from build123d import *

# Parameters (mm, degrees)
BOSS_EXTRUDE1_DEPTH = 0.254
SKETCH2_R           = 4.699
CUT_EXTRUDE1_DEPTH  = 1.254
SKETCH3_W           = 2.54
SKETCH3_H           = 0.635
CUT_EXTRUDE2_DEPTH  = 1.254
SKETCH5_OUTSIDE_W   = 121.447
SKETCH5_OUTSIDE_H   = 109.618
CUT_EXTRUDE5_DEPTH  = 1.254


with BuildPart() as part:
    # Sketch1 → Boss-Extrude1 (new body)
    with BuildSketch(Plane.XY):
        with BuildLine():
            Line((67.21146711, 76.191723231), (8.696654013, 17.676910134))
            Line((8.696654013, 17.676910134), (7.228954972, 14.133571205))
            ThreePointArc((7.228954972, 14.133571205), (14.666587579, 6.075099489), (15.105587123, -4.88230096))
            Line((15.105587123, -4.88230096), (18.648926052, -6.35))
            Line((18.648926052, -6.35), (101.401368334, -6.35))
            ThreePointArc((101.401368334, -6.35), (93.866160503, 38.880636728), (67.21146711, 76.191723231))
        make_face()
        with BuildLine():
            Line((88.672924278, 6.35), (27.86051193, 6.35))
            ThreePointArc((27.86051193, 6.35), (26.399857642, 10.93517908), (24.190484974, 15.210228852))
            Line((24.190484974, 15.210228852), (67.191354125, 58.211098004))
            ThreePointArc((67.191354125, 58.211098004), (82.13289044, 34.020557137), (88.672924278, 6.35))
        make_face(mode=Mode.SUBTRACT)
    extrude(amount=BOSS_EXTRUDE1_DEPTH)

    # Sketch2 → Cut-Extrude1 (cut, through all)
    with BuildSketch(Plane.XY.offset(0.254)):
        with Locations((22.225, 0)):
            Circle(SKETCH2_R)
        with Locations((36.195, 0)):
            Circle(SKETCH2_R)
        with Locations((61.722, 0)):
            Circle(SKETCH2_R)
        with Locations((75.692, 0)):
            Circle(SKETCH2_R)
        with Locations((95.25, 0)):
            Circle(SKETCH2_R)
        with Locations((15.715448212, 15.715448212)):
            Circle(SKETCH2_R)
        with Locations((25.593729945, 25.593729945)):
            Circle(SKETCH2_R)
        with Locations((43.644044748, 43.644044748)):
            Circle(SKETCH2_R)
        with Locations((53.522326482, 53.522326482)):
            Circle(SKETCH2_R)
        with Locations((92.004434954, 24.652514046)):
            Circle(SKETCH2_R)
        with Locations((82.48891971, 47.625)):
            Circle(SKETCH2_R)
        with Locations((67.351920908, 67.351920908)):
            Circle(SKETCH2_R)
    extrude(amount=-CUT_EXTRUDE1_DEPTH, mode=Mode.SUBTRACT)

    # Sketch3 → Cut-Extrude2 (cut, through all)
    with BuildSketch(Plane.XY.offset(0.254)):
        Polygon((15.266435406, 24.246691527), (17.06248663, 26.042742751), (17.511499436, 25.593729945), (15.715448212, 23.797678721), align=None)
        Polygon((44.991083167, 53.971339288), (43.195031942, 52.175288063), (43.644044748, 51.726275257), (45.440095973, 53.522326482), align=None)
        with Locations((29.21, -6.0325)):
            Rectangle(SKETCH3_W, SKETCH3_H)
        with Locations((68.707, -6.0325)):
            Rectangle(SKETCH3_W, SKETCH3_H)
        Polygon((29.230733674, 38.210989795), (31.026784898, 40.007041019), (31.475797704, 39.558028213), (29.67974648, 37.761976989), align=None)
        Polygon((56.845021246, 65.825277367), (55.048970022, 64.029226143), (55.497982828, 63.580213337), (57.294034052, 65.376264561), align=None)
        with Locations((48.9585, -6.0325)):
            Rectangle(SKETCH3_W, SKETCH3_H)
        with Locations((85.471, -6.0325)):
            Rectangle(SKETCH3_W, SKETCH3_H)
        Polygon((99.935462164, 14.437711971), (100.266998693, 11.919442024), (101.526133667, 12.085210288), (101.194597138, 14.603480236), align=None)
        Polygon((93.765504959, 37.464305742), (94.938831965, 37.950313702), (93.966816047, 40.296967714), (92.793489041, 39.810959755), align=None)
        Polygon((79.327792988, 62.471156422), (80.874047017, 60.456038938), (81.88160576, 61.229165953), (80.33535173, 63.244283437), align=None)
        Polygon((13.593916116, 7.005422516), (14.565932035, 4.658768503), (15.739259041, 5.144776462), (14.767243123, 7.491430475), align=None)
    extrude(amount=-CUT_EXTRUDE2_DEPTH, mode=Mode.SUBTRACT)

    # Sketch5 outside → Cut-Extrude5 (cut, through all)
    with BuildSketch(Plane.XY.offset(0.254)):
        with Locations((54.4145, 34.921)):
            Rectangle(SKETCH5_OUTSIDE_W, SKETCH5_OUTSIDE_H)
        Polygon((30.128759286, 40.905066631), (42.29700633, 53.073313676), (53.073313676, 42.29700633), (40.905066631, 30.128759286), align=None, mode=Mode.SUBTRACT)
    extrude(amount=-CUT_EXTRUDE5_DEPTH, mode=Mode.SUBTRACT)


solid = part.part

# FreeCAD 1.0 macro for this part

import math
import FreeCAD as App
import Part
import Sketcher

V = App.Vector
Q = App.Units.Quantity


def add_polygon(sketch, points):
    """Adds a closed chain of lines whose ends are joined by coincident constraints."""
    first, n = sketch.GeometryCount, len(points)
    for a, b in zip(points, points[1:] + points[:1]):
        sketch.addGeometry(Part.LineSegment(App.Vector(*a, 0), App.Vector(*b, 0)), False)
    for i in range(n):
        sketch.addConstraint(Sketcher.Constraint("Coincident", first + i, 2, first + (i + 1) % n, 1))

doc = App.newDocument("Part")
body = doc.addObject("PartDesign::Body", "Body")

# Sketch on XY plane
sketch1 = doc.addObject("Sketcher::SketchObject", "Sketch")
body.addObject(sketch1)
sketch1.AttachmentSupport = (doc.XY_Plane, [""])
sketch1.MapMode = "FlatFace"
sketch1.addGeometry([
    Part.LineSegment(V(67.2, 76.2, 0), V(8.7, 17.7, 0)),  # 0
    Part.LineSegment(V(8.7, 17.7, 0), V(7.2, 14.1, 0)),  # 1
    Part.ArcOfCircle(Part.Circle(V(0, 0, 0), V(0, 0, 1), 15.9), math.radians(-18), math.radians(63)),  # 2
    Part.LineSegment(V(15.1, -4.9, 0), V(18.6, -6.3, 0)),  # 3
    Part.LineSegment(V(18.6, -6.3, 0), V(101.4, -6.3, 0)),  # 4
    Part.ArcOfCircle(Part.Circle(V(0, 0, 0), V(0, 0, 1), 101.6), math.radians(-4), math.radians(49)),  # 5
    Part.ArcOfCircle(Part.Circle(V(0, 0, 0), V(0, 0, 1), 88.9), math.radians(4), math.radians(41)),  # 6
    Part.LineSegment(V(88.7, 6.3, 0), V(27.9, 6.3, 0)),  # 7
    Part.ArcOfCircle(Part.Circle(V(0, 0, 0), V(0, 0, 1), 28.6), math.radians(12.84), math.radians(32.16)),  # 8
    Part.LineSegment(V(24.2, 15.2, 0), V(67.2, 58.2, 0)),  # 9
], False)
sketch1.addConstraint([
    Sketcher.Constraint("Coincident", 0, 2, 1, 1),
    Sketcher.Constraint("Coincident", 1, 2, 2, 2),
    Sketcher.Constraint("Coincident", 2, 1, 3, 1),
    Sketcher.Constraint("Coincident", 3, 2, 4, 1),
    Sketcher.Constraint("Coincident", 4, 2, 5, 1),
    Sketcher.Constraint("Coincident", 5, 2, 0, 1),
    Sketcher.Constraint("Coincident", 6, 1, 7, 1),
    Sketcher.Constraint("Coincident", 7, 2, 8, 1),
    Sketcher.Constraint("Coincident", 8, 2, 9, 1),
    Sketcher.Constraint("Coincident", 9, 2, 6, 2),
    Sketcher.Constraint("Horizontal", 4),
    Sketcher.Constraint("Horizontal", 7),
    Sketcher.Constraint("Coincident", 2, 3, -1, 1),
    Sketcher.Constraint("Coincident", 5, 3, -1, 1),
    Sketcher.Constraint("Coincident", 6, 3, -1, 1),
    Sketcher.Constraint("Coincident", 8, 3, -1, 1),
    Sketcher.Constraint("Perpendicular", 1, 3),
    Sketcher.Constraint("Parallel", 0, 9),
    Sketcher.Constraint("Equal", 1, 3),
    Sketcher.Constraint("Radius", 5, Q("4 in")),
    Sketcher.Constraint("Radius", 6, Q("3.5 in")),
    Sketcher.Constraint("Angle", 0, Q("-135 deg")),
    Sketcher.Constraint("Radius", 2, Q("0.625 in")),
    Sketcher.Constraint("Radius", 8, Q("1.125 in")),
    Sketcher.Constraint("Angle", 1, Q("-112.5 deg")),
    Sketcher.Constraint("DistanceY", 4, 2, 6, 1, Q("0.5 in")),
    Sketcher.Constraint("DistanceY", 3, 2, -1, 1, Q("0.25 in")),
    Sketcher.Constraint("DistanceY", 2, 1, -1, 1, Q("4.882301 mm")),
    Sketcher.Constraint("DistanceY", -1, 1, 9, 2, Q("58.211098 mm")),
    Sketcher.Constraint("DistanceX", 5, 2, 4, 2, Q("34.189901 mm")),
])
pad1 = doc.addObject("PartDesign::Pad", "Pad")
body.addObject(pad1)
pad1.Profile = sketch1
pad1.Length = Q("0.01 in")

# Sketch on XY plane
sketch2 = doc.addObject("Sketcher::SketchObject", "Sketch001")
body.addObject(sketch2)
sketch2.AttachmentSupport = (doc.XY_Plane, [""])
sketch2.MapMode = "FlatFace"
sketch2.AttachmentOffset = App.Placement(V(0, 0, 0.01 * 25.4), App.Rotation())
sketch2.addGeometry([
    Part.Circle(V(22.2, 0, 0), V(0, 0, 1), 4.7),  # 0
    Part.Circle(V(36.2, 0, 0), V(0, 0, 1), 4.7),  # 1
    Part.Circle(V(61.7, 0, 0), V(0, 0, 1), 4.7),  # 2
    Part.Circle(V(75.7, 0, 0), V(0, 0, 1), 4.7),  # 3
    Part.Circle(V(95.2, 0, 0), V(0, 0, 1), 4.7),  # 4
    Part.Circle(V(15.7, 15.7, 0), V(0, 0, 1), 4.7),  # 5
    Part.Circle(V(25.6, 25.6, 0), V(0, 0, 1), 4.7),  # 6
    Part.Circle(V(43.6, 43.6, 0), V(0, 0, 1), 4.7),  # 7
    Part.Circle(V(53.5, 53.5, 0), V(0, 0, 1), 4.7),  # 8
    Part.Circle(V(92, 24.7, 0), V(0, 0, 1), 4.7),  # 9
    Part.Circle(V(82.5, 47.6, 0), V(0, 0, 1), 4.7),  # 10
    Part.Circle(V(67.4, 67.4, 0), V(0, 0, 1), 4.7),  # 11
], False)
sketch2.addConstraint([
    Sketcher.Constraint("Equal", 0, 1),
    Sketcher.Constraint("Equal", 1, 2),
    Sketcher.Constraint("Equal", 2, 3),
    Sketcher.Constraint("Equal", 3, 4),
    Sketcher.Constraint("Equal", 4, 5),
    Sketcher.Constraint("Equal", 5, 6),
    Sketcher.Constraint("Equal", 6, 7),
    Sketcher.Constraint("Equal", 7, 8),
    Sketcher.Constraint("Equal", 8, 9),
    Sketcher.Constraint("Equal", 9, 10),
    Sketcher.Constraint("Equal", 10, 11),
    Sketcher.Constraint("PointOnObject", 0, 3, -1),
    Sketcher.Constraint("PointOnObject", 1, 3, -1),
    Sketcher.Constraint("PointOnObject", 2, 3, -1),
    Sketcher.Constraint("PointOnObject", 3, 3, -1),
    Sketcher.Constraint("PointOnObject", 4, 3, -1),
    Sketcher.Constraint("Diameter", 0, Q("0.37 in")),
    Sketcher.Constraint("DistanceX", -1, 1, 2, 3, Q("2.43 in")),
    Sketcher.Constraint("DistanceX", -1, 1, 3, 3, Q("2.98 in")),
    Sketcher.Constraint("DistanceX", -1, 1, 4, 3, Q("3.75 in")),
    Sketcher.Constraint("DistanceX", 0, 3, 1, 3, Q("0.55 in")),
    Sketcher.Constraint("DistanceX", -1, 1, 0, 3, Q("0.875 in")),
    Sketcher.Constraint("DistanceY", -1, 1, 10, 3, Q("1.875 in")),
    Sketcher.Constraint("DistanceX", 11, 3, 10, 3, Q("15.136999 mm")),
    Sketcher.Constraint("DistanceX", -1, 1, 5, 3, Q("15.715448 mm")),
    Sketcher.Constraint("DistanceY", -1, 1, 5, 3, Q("15.715448 mm")),
    Sketcher.Constraint("DistanceX", -1, 1, 6, 3, Q("25.59373 mm")),
    Sketcher.Constraint("DistanceY", -1, 1, 6, 3, Q("25.59373 mm")),
    Sketcher.Constraint("DistanceX", -1, 1, 10, 3, Q("82.48892 mm")),
    Sketcher.Constraint("DistanceY", -1, 1, 11, 3, Q("67.351921 mm")),
    Sketcher.Constraint("DistanceX", 7, 3, 8, 3, Q("9.878282 mm")),
    Sketcher.Constraint("DistanceY", 7, 3, 8, 3, Q("9.878282 mm")),
    Sketcher.Constraint("DistanceX", 5, 3, 8, 3, Q("37.806878 mm")),
    Sketcher.Constraint("DistanceY", 5, 3, 8, 3, Q("37.806878 mm")),
    Sketcher.Constraint("DistanceX", 8, 3, 9, 3, Q("38.482108 mm")),
    Sketcher.Constraint("DistanceY", 9, 3, 7, 3, Q("18.991531 mm")),
])
pocket1 = doc.addObject("PartDesign::Pocket", "Pocket")
body.addObject(pocket1)
pocket1.Profile = sketch2
pocket1.Type = "ThroughAll"

# Sketch on XY plane
sketch3 = doc.addObject("Sketcher::SketchObject", "Sketch002")
body.addObject(sketch3)
sketch3.AttachmentSupport = (doc.XY_Plane, [""])
sketch3.MapMode = "FlatFace"
sketch3.AttachmentOffset = App.Placement(V(0, 0, 0.01 * 25.4), App.Rotation())
add_polygon(sketch3, [(17.1, 26), (15.3, 24.2), (15.7, 23.8), (17.5, 25.6)])  # lines 0-3
add_polygon(sketch3, [(45, 54), (43.2, 52.2), (43.6, 51.7), (45.4, 53.5)])  # lines 4-7
add_polygon(sketch3, [(27.9, -5.7), (27.9, -6.3), (30.5, -6.3), (30.5, -5.7)])  # lines 8-11
add_polygon(sketch3, [(67.4, -5.7), (67.4, -6.3), (70, -6.3), (70, -5.7)])  # lines 12-15
add_polygon(sketch3, [(31, 40), (29.2, 38.2), (29.7, 37.8), (31.5, 39.6)])  # lines 16-19
add_polygon(sketch3, [(56.8, 65.8), (55, 64), (55.5, 63.6), (57.3, 65.4)])  # lines 20-23
add_polygon(sketch3, [(47.7, -5.7), (47.7, -6.3), (50.2, -6.3), (50.2, -5.7)])  # lines 24-27
add_polygon(sketch3, [(84.2, -5.7), (84.2, -6.3), (86.7, -6.3), (86.7, -5.7)])  # lines 28-31
add_polygon(sketch3, [(99.9, 14.4), (100.3, 11.9), (101.5, 12.1), (101.2, 14.6)])  # lines 32-35
add_polygon(sketch3, [(93.8, 37.5), (94.9, 38), (94, 40.3), (92.8, 39.8)])  # lines 36-39
add_polygon(sketch3, [(79.3, 62.5), (80.9, 60.5), (81.9, 61.2), (80.3, 63.2)])  # lines 40-43
add_polygon(sketch3, [(13.6, 7), (14.6, 4.7), (15.7, 5.1), (14.8, 7.5)])  # lines 44-47
sketch3.addConstraint([
    Sketcher.Constraint("Vertical", 8),
    Sketcher.Constraint("Horizontal", 9),
    Sketcher.Constraint("Vertical", 10),
    Sketcher.Constraint("Horizontal", 11),
    Sketcher.Constraint("Vertical", 12),
    Sketcher.Constraint("Horizontal", 13),
    Sketcher.Constraint("Vertical", 14),
    Sketcher.Constraint("Horizontal", 15),
    Sketcher.Constraint("Vertical", 24),
    Sketcher.Constraint("Horizontal", 25),
    Sketcher.Constraint("Vertical", 26),
    Sketcher.Constraint("Horizontal", 27),
    Sketcher.Constraint("Vertical", 28),
    Sketcher.Constraint("Horizontal", 29),
    Sketcher.Constraint("Vertical", 30),
    Sketcher.Constraint("Horizontal", 31),
    Sketcher.Constraint("Perpendicular", 0, 1),
    Sketcher.Constraint("Perpendicular", 1, 2),
    Sketcher.Constraint("Perpendicular", 2, 3),
    Sketcher.Constraint("Perpendicular", 3, 4),
    Sketcher.Constraint("Perpendicular", 4, 5),
    Sketcher.Constraint("Perpendicular", 5, 6),
    Sketcher.Constraint("Perpendicular", 6, 7),
    Sketcher.Constraint("Perpendicular", 7, 16),
    Sketcher.Constraint("Perpendicular", 16, 17),
    Sketcher.Constraint("Perpendicular", 17, 18),
    Sketcher.Constraint("Perpendicular", 18, 19),
    Sketcher.Constraint("Perpendicular", 19, 20),
    Sketcher.Constraint("Perpendicular", 20, 21),
    Sketcher.Constraint("Perpendicular", 21, 22),
    Sketcher.Constraint("Perpendicular", 22, 23),
    Sketcher.Constraint("Perpendicular", 32, 33),
    Sketcher.Constraint("Perpendicular", 33, 34),
    Sketcher.Constraint("Perpendicular", 34, 35),
    Sketcher.Constraint("Perpendicular", 36, 37),
    Sketcher.Constraint("Perpendicular", 37, 38),
    Sketcher.Constraint("Perpendicular", 38, 39),
    Sketcher.Constraint("Perpendicular", 40, 41),
    Sketcher.Constraint("Perpendicular", 41, 42),
    Sketcher.Constraint("Perpendicular", 42, 43),
    Sketcher.Constraint("Parallel", 39, 44),
    Sketcher.Constraint("Perpendicular", 44, 45),
    Sketcher.Constraint("Perpendicular", 45, 46),
    Sketcher.Constraint("Perpendicular", 46, 47),
    Sketcher.Constraint("Horizontal", 9, 2, 12, 2),
    Sketcher.Constraint("Horizontal", 11, 2, 14, 2),
    Sketcher.Constraint("Horizontal", 13, 2, 24, 2),
    Sketcher.Constraint("Horizontal", 15, 2, 26, 2),
    Sketcher.Constraint("Horizontal", 25, 2, 28, 2),
    Sketcher.Constraint("Horizontal", 27, 2, 30, 2),
    Sketcher.Constraint("Equal", 11, 13),
    Sketcher.Constraint("Equal", 15, 25),
    Sketcher.Constraint("Equal", 27, 29),
    Sketcher.Constraint("Equal", 2, 4),
    Sketcher.Constraint("Equal", 3, 5),
    Sketcher.Constraint("Equal", 6, 16),
    Sketcher.Constraint("Equal", 7, 17),
    Sketcher.Constraint("Equal", 18, 20),
    Sketcher.Constraint("Equal", 19, 21),
    Sketcher.Constraint("Equal", 22, 32),
    Sketcher.Constraint("Equal", 35, 36),
    Sketcher.Constraint("Equal", 34, 37),
    Sketcher.Constraint("Equal", 39, 40),
    Sketcher.Constraint("Equal", 38, 41),
    Sketcher.Constraint("Equal", 42, 44),
    Sketcher.Constraint("Equal", 43, 45),
    Sketcher.Constraint("DistanceX", 9, 1, 9, 2, Q("0.1 in")),
    Sketcher.Constraint("Angle", 0, Q("-135 deg")),
    Sketcher.Constraint("Distance", 0, Q("0.1 in")),
    Sketcher.Constraint("DistanceX", -1, 1, 8, 2, Q("1.1 in")),
    Sketcher.Constraint("Angle", 32, Q("-82.5 deg")),
    Sketcher.Constraint("Angle", 36, Q("22.5 deg")),
    Sketcher.Constraint("Angle", 40, Q("-52.5 deg")),
    Sketcher.Constraint("Distance", 33, Q("0.05 in")),
    Sketcher.Constraint("DistanceY", 8, 2, 8, 1, Q("0.025 in")),
    Sketcher.Constraint("DistanceY", 8, 2, -1, 1, Q("0.25 in")),
    Sketcher.Constraint("DistanceX", 13, 2, 28, 2, Q("0.56 in")),
    Sketcher.Constraint("Distance", 1, Q("0.025 in")),
    Sketcher.Constraint("DistanceX", -1, 1, 12, 2, Q("2.655 in")),
    Sketcher.Constraint("DistanceX", -1, 1, 24, 2, Q("1.8775 in")),
    Sketcher.Constraint("DistanceX", -1, 1, 2, 2, Q("17.511499 mm")),
    Sketcher.Constraint("DistanceX", -1, 1, 32, 2, Q("100.266999 mm")),
    Sketcher.Constraint("DistanceX", 16, 2, 4, 2, Q("13.964298 mm")),
    Sketcher.Constraint("DistanceY", 16, 2, 4, 2, Q("13.964298 mm")),
    Sketcher.Constraint("DistanceX", 0, 2, 16, 2, Q("13.964298 mm")),
    Sketcher.Constraint("DistanceY", 0, 2, 16, 2, Q("13.964298 mm")),
    Sketcher.Constraint("DistanceY", 6, 2, 20, 2, Q("10.5069 mm")),
    Sketcher.Constraint("DistanceX", 7, 2, 21, 2, Q("10.5069 mm")),
    Sketcher.Constraint("DistanceY", 35, 2, 36, 2, Q("23.512602 mm")),
    Sketcher.Constraint("DistanceX", 36, 2, 33, 2, Q("6.587302 mm")),
    Sketcher.Constraint("DistanceY", 37, 2, 41, 2, Q("20.932198 mm")),
    Sketcher.Constraint("DistanceY", 41, 2, 22, 2, Q("4.147099 mm")),
    Sketcher.Constraint("DistanceY", 46, 2, 2, 2, Q("18.102299 mm")),
    Sketcher.Constraint("DistanceY", -1, 1, 0, 2, Q("24.246692 mm")),
    Sketcher.Constraint("DistanceX", -1, 1, 42, 2, Q("80.335352 mm")),
    Sketcher.Constraint("DistanceX", -1, 1, 45, 2, Q("15.739259 mm")),
])
pocket2 = doc.addObject("PartDesign::Pocket", "Pocket001")
body.addObject(pocket2)
pocket2.Profile = sketch3
pocket2.Type = "ThroughAll"

# Sketch on XY plane
sketch4 = doc.addObject("Sketcher::SketchObject", "Sketch003")
body.addObject(sketch4)
sketch4.AttachmentSupport = (doc.XY_Plane, [""])
sketch4.MapMode = "FlatFace"
sketch4.AttachmentOffset = App.Placement(V(0, 0, 0.01 * 25.4), App.Rotation())
add_polygon(sketch4, [(-6, 90), (-6, -20), (115, -20), (115, 90)])  # lines 0-3
add_polygon(sketch4, [(41, 30), (30, 41), (42, 53), (53, 42)])  # lines 4-7
sketch4.addConstraint([
    Sketcher.Constraint("Vertical", 0),
    Sketcher.Constraint("Horizontal", 1),
    Sketcher.Constraint("Vertical", 2),
    Sketcher.Constraint("Horizontal", 3),
    Sketcher.Constraint("Perpendicular", 4, 5),
    Sketcher.Constraint("Perpendicular", 5, 6),
    Sketcher.Constraint("Perpendicular", 6, 7),
    Sketcher.Constraint("Angle", 4, Q("135 deg")),
    Sketcher.Constraint("Distance", 4, Q("0.6 in")),
    Sketcher.Constraint("Distance", 5, Q("0.6775 in")),
    Sketcher.Constraint("DistanceX", 1, 1, 1, 2, Q("121.447 mm")),
    Sketcher.Constraint("DistanceY", 0, 2, 0, 1, Q("109.618 mm")),
    Sketcher.Constraint("DistanceX", 0, 2, -1, 1, Q("6.309 mm")),
    Sketcher.Constraint("DistanceY", 0, 2, -1, 1, Q("19.888 mm")),
    Sketcher.Constraint("DistanceX", -1, 1, 4, 2, Q("30.128759 mm")),
    Sketcher.Constraint("DistanceY", -1, 1, 7, 2, Q("30.128759 mm")),
])
pocket3 = doc.addObject("PartDesign::Pocket", "Pocket002")
body.addObject(pocket3)
pocket3.Profile = sketch4
pocket3.Type = "ThroughAll"

doc.recompute()
